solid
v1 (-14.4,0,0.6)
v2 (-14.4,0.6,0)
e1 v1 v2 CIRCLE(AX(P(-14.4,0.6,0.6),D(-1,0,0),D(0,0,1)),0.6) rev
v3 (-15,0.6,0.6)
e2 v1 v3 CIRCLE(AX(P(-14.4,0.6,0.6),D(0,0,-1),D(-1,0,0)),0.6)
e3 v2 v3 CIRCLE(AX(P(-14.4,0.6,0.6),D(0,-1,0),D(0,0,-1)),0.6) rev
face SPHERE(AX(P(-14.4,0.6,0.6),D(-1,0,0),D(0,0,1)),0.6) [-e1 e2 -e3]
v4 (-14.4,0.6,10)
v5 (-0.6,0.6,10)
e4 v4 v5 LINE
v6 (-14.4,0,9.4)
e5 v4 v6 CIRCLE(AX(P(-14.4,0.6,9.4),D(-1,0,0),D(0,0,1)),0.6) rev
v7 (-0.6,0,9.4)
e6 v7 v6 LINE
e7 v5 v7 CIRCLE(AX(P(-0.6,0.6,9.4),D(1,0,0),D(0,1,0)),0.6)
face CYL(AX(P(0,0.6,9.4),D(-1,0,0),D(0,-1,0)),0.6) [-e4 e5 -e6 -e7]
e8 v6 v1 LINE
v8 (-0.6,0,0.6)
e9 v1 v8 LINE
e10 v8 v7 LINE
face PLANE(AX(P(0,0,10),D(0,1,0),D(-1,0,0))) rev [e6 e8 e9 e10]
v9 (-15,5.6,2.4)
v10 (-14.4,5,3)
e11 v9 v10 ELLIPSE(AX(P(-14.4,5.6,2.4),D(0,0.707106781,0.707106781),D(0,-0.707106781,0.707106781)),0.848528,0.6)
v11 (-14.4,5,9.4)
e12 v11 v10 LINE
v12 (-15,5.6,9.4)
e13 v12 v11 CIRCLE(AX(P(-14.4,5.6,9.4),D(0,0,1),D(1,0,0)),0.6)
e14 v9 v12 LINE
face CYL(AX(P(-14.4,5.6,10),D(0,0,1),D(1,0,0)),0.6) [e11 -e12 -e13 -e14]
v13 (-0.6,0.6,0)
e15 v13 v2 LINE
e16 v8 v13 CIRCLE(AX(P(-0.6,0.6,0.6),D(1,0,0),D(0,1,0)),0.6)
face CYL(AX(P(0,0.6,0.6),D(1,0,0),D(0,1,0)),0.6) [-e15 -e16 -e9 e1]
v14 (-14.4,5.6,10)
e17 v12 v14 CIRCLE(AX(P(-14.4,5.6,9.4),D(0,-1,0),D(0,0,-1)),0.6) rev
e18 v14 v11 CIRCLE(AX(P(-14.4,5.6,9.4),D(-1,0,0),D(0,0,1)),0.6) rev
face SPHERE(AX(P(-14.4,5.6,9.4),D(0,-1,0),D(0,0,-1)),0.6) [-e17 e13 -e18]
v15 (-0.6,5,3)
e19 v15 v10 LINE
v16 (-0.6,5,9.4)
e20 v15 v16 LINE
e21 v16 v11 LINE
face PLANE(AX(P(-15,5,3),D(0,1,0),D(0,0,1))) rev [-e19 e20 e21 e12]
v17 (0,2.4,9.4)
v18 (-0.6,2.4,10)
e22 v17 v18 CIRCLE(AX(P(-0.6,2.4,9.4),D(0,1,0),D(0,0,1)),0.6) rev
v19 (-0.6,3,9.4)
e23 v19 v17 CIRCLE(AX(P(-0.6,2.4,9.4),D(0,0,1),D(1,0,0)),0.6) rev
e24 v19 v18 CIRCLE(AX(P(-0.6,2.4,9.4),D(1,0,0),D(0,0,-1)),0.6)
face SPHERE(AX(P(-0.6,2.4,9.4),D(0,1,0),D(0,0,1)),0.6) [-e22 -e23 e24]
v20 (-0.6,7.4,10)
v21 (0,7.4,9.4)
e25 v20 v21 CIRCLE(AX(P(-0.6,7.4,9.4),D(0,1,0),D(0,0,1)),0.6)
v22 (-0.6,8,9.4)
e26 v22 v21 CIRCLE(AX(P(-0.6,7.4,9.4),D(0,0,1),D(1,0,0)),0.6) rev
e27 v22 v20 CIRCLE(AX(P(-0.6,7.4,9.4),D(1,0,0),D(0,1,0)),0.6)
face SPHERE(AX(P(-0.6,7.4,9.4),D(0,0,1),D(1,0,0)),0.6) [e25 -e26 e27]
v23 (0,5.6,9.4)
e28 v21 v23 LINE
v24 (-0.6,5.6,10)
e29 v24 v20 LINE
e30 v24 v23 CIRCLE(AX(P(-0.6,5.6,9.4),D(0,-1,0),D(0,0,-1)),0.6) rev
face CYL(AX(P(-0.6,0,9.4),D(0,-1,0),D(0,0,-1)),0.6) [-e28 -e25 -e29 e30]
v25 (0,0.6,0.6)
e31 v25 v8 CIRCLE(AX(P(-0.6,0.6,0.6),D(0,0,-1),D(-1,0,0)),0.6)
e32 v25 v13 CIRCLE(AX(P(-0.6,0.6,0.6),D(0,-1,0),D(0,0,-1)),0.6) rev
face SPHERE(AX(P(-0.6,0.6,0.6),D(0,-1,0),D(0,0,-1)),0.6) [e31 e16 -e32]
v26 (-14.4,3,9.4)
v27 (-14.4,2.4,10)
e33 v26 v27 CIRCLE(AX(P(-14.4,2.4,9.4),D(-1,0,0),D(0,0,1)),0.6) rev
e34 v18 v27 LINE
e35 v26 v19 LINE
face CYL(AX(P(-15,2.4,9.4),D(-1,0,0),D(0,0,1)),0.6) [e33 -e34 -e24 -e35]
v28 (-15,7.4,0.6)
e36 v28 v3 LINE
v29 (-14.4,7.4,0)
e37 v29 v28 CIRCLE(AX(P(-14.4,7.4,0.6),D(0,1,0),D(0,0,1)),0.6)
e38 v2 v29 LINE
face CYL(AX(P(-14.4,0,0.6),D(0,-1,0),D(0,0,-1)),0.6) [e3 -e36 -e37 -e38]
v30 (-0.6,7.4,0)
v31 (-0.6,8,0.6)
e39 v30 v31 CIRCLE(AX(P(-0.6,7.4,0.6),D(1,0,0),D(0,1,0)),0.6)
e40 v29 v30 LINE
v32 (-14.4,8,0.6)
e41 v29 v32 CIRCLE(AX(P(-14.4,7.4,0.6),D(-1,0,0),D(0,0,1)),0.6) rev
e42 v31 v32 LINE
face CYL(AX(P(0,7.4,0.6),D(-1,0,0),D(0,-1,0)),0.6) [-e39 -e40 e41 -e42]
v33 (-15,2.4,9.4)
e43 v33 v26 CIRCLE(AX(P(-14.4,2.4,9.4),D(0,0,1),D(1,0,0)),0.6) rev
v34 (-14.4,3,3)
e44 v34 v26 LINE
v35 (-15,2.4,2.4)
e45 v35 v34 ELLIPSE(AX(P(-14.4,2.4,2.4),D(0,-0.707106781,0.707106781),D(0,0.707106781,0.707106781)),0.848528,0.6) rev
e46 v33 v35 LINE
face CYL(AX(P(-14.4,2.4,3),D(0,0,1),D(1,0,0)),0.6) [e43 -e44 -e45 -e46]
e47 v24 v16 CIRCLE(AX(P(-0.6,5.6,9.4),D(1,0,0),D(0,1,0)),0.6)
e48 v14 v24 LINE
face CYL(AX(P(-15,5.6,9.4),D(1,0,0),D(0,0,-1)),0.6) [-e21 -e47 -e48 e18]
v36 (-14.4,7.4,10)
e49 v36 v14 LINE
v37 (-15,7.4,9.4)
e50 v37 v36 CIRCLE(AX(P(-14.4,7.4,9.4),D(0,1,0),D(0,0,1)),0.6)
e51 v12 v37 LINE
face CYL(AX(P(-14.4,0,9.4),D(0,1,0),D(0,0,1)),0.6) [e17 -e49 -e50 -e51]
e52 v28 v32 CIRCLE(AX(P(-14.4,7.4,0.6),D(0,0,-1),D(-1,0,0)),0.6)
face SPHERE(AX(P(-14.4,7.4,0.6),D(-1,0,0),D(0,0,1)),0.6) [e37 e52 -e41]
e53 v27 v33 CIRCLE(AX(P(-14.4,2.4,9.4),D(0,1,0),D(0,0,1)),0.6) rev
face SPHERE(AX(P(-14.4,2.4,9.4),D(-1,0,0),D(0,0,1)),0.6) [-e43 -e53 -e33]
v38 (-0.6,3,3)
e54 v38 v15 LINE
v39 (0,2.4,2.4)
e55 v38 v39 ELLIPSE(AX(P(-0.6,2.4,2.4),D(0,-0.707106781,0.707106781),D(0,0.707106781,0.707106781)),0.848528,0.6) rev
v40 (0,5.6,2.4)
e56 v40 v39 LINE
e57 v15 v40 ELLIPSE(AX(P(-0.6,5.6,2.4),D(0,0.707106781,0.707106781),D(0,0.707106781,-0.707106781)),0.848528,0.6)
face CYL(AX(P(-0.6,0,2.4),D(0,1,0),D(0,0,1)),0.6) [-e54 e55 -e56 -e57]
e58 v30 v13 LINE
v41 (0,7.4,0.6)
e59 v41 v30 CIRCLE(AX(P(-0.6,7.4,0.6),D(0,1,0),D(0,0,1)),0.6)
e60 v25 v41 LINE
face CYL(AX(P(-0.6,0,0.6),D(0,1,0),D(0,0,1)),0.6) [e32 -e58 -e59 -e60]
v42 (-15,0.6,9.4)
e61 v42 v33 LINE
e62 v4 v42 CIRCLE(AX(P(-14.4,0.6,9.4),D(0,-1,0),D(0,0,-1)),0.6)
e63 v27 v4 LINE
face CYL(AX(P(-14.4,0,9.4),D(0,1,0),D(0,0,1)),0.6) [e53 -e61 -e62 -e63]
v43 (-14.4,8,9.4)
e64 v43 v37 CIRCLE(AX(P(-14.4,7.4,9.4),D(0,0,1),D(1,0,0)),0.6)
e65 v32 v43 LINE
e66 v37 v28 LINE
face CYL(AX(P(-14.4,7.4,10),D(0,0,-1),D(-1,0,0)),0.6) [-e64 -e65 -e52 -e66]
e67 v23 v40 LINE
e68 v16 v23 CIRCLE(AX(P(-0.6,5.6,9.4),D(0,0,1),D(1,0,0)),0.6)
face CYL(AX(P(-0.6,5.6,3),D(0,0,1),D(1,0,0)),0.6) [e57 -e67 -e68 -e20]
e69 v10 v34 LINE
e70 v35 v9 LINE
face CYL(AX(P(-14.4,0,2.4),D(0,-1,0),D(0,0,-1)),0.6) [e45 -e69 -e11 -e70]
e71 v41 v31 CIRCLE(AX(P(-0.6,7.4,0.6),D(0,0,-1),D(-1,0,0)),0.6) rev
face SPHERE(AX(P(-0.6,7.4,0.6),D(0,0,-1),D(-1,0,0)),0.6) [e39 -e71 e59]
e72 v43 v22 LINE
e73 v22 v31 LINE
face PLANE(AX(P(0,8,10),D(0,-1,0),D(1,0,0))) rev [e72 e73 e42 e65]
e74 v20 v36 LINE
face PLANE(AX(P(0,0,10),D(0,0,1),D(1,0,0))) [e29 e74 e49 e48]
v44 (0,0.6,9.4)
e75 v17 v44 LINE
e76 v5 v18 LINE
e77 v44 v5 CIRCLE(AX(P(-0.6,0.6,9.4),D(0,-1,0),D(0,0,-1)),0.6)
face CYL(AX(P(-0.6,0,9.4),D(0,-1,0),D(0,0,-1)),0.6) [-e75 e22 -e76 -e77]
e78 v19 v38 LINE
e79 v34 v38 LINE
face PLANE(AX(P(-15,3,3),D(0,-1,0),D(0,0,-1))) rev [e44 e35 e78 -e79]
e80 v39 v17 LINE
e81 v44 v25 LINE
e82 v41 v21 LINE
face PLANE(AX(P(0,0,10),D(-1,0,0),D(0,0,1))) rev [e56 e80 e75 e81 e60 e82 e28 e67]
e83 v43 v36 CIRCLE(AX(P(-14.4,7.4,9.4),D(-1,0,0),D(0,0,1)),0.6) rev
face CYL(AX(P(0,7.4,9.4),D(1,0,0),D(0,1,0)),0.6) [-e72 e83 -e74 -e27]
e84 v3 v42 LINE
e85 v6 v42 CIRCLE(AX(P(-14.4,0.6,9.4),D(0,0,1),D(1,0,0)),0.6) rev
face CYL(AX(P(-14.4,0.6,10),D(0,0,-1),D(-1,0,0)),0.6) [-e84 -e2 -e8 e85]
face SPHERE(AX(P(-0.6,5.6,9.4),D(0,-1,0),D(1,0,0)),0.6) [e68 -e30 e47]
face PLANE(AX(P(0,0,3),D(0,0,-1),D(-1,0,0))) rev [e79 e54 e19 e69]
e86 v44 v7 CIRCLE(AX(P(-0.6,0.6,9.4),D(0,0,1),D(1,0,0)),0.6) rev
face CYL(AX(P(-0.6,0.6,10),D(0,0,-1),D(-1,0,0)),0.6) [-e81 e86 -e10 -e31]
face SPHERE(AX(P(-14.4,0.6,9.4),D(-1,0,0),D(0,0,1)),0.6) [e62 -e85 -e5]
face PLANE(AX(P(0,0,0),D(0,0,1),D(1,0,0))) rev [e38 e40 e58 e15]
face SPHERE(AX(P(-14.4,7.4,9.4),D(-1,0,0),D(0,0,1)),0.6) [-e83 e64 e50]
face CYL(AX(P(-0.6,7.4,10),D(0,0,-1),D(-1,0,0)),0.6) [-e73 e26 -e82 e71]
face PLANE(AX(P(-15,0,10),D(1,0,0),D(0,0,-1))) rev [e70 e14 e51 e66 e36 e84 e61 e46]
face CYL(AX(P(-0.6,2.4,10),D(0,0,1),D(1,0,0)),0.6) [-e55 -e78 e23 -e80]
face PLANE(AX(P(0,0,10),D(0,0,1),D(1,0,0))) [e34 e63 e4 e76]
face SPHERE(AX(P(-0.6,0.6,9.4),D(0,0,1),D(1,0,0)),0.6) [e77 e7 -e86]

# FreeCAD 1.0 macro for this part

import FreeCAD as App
import Part
import Sketcher

V = App.Vector
Q = App.Units.Quantity


def edges_at(feature, points):
    """Names of the edges that pass closest to the given points."""
    edges = feature.Shape.Edges
    near = lambda p: min(range(len(edges)), key=lambda i: edges[i].distToShape(Part.Vertex(*p))[0])
    return sorted({f"Edge{near(p) + 1}" for p in points})

doc = App.newDocument("Part")
body = doc.addObject("PartDesign::Body", "Body")

# Sketch on XY plane
sketch1 = body.newObject("Sketcher::SketchObject", "Sketch")
sketch1.AttachmentSupport = (doc.getObject("XY_Plane"), [""])
sketch1.MapMode = "FlatFace"
sketch1.addGeometry(Part.LineSegment(V(-15, 8, 0), V(-15, 0, 0)), False)
sketch1.addGeometry(Part.LineSegment(V(-15, 0, 0), V(0, 0, 0)), False)
sketch1.addGeometry(Part.LineSegment(V(0, 0, 0), V(0, 8, 0)), False)
sketch1.addGeometry(Part.LineSegment(V(0, 8, 0), V(-15, 8, 0)), False)
sketch1.addConstraint(Sketcher.Constraint("Coincident", 0, 2, 1, 1))
sketch1.addConstraint(Sketcher.Constraint("Coincident", 1, 2, 2, 1))
sketch1.addConstraint(Sketcher.Constraint("Coincident", 2, 2, 3, 1))
sketch1.addConstraint(Sketcher.Constraint("Coincident", 3, 2, 0, 1))
sketch1.addConstraint(Sketcher.Constraint("Vertical", 0))
sketch1.addConstraint(Sketcher.Constraint("Horizontal", 1))
sketch1.addConstraint(Sketcher.Constraint("Vertical", 2))
sketch1.addConstraint(Sketcher.Constraint("Horizontal", 3))
sketch1.addConstraint(Sketcher.Constraint("Coincident", 1, 2, -1, 1))
sketch1.addConstraint(Sketcher.Constraint("DistanceX", 1, 1, 1, 2, Q("15 mm")))
sketch1.addConstraint(Sketcher.Constraint("DistanceY", 0, 2, 0, 1, Q("8 mm")))
pad1 = body.newObject("PartDesign::Pad", "Pad")
pad1.Profile = sketch1
pad1.Length = 10

# Sketch on XY plane
sketch2 = body.newObject("Sketcher::SketchObject", "Sketch001")
sketch2.AttachmentSupport = (doc.getObject("XY_Plane"), [""])
sketch2.MapMode = "FlatFace"
sketch2.AttachmentOffset = App.Placement(V(0, 0, 10), App.Rotation())
sketch2.addGeometry(Part.LineSegment(V(-15, 5, 0), V(-15, 3, 0)), False)
sketch2.addGeometry(Part.LineSegment(V(-15, 3, 0), V(0, 3, 0)), False)
sketch2.addGeometry(Part.LineSegment(V(0, 3, 0), V(0, 5, 0)), False)
sketch2.addGeometry(Part.LineSegment(V(0, 5, 0), V(-15, 5, 0)), False)
sketch2.addConstraint(Sketcher.Constraint("Coincident", 0, 2, 1, 1))
sketch2.addConstraint(Sketcher.Constraint("Coincident", 1, 2, 2, 1))
sketch2.addConstraint(Sketcher.Constraint("Coincident", 2, 2, 3, 1))
sketch2.addConstraint(Sketcher.Constraint("Coincident", 3, 2, 0, 1))
sketch2.addConstraint(Sketcher.Constraint("Vertical", 0))
sketch2.addConstraint(Sketcher.Constraint("Horizontal", 1))
sketch2.addConstraint(Sketcher.Constraint("Vertical", 2))
sketch2.addConstraint(Sketcher.Constraint("Horizontal", 3))
sketch2.addConstraint(Sketcher.Constraint("PointOnObject", 1, 2, -2))
sketch2.addConstraint(Sketcher.Constraint("DistanceX", 1, 1, 1, 2, Q("15 mm")))
sketch2.addConstraint(Sketcher.Constraint("DistanceY", 0, 2, 0, 1, Q("2 mm")))
sketch2.addConstraint(Sketcher.Constraint("DistanceY", -1, 1, 0, 2, Q("3 mm")))
pocket1 = body.newObject("PartDesign::Pocket", "Pocket")
pocket1.Profile = sketch2
pocket1.Length = 7
doc.recompute()

fillet = body.newObject("PartDesign::Fillet", "Fillet")
fillet.Base = (pocket1, edges_at(pocket1, [
    (-15, 6.5, 10),
    (0, 6.5, 10),
    (-15, 1.5, 10),
    (-7.5, 0, 10),
    (-15, 4, 3),
    (-15, 3, 6.5),
    (-15, 5, 6.5),
    (0, 4, 3),
    (0, 5, 6.5),
    (0, 3, 6.5),
    (-7.5, 3, 10),
    (-7.5, 5, 10),
    (0, 1.5, 10),
    (-7.5, 0, 0),
    (-15, 4, 0),
    (-7.5, 8, 0),
    (0, 4, 0),
    (0, 0, 5),
    (-15, 0, 5),
    (-15, 8, 5),
    (0, 8, 5),
    (-7.5, 8, 10),
]))
fillet.Radius = 0.6

doc.recompute()
